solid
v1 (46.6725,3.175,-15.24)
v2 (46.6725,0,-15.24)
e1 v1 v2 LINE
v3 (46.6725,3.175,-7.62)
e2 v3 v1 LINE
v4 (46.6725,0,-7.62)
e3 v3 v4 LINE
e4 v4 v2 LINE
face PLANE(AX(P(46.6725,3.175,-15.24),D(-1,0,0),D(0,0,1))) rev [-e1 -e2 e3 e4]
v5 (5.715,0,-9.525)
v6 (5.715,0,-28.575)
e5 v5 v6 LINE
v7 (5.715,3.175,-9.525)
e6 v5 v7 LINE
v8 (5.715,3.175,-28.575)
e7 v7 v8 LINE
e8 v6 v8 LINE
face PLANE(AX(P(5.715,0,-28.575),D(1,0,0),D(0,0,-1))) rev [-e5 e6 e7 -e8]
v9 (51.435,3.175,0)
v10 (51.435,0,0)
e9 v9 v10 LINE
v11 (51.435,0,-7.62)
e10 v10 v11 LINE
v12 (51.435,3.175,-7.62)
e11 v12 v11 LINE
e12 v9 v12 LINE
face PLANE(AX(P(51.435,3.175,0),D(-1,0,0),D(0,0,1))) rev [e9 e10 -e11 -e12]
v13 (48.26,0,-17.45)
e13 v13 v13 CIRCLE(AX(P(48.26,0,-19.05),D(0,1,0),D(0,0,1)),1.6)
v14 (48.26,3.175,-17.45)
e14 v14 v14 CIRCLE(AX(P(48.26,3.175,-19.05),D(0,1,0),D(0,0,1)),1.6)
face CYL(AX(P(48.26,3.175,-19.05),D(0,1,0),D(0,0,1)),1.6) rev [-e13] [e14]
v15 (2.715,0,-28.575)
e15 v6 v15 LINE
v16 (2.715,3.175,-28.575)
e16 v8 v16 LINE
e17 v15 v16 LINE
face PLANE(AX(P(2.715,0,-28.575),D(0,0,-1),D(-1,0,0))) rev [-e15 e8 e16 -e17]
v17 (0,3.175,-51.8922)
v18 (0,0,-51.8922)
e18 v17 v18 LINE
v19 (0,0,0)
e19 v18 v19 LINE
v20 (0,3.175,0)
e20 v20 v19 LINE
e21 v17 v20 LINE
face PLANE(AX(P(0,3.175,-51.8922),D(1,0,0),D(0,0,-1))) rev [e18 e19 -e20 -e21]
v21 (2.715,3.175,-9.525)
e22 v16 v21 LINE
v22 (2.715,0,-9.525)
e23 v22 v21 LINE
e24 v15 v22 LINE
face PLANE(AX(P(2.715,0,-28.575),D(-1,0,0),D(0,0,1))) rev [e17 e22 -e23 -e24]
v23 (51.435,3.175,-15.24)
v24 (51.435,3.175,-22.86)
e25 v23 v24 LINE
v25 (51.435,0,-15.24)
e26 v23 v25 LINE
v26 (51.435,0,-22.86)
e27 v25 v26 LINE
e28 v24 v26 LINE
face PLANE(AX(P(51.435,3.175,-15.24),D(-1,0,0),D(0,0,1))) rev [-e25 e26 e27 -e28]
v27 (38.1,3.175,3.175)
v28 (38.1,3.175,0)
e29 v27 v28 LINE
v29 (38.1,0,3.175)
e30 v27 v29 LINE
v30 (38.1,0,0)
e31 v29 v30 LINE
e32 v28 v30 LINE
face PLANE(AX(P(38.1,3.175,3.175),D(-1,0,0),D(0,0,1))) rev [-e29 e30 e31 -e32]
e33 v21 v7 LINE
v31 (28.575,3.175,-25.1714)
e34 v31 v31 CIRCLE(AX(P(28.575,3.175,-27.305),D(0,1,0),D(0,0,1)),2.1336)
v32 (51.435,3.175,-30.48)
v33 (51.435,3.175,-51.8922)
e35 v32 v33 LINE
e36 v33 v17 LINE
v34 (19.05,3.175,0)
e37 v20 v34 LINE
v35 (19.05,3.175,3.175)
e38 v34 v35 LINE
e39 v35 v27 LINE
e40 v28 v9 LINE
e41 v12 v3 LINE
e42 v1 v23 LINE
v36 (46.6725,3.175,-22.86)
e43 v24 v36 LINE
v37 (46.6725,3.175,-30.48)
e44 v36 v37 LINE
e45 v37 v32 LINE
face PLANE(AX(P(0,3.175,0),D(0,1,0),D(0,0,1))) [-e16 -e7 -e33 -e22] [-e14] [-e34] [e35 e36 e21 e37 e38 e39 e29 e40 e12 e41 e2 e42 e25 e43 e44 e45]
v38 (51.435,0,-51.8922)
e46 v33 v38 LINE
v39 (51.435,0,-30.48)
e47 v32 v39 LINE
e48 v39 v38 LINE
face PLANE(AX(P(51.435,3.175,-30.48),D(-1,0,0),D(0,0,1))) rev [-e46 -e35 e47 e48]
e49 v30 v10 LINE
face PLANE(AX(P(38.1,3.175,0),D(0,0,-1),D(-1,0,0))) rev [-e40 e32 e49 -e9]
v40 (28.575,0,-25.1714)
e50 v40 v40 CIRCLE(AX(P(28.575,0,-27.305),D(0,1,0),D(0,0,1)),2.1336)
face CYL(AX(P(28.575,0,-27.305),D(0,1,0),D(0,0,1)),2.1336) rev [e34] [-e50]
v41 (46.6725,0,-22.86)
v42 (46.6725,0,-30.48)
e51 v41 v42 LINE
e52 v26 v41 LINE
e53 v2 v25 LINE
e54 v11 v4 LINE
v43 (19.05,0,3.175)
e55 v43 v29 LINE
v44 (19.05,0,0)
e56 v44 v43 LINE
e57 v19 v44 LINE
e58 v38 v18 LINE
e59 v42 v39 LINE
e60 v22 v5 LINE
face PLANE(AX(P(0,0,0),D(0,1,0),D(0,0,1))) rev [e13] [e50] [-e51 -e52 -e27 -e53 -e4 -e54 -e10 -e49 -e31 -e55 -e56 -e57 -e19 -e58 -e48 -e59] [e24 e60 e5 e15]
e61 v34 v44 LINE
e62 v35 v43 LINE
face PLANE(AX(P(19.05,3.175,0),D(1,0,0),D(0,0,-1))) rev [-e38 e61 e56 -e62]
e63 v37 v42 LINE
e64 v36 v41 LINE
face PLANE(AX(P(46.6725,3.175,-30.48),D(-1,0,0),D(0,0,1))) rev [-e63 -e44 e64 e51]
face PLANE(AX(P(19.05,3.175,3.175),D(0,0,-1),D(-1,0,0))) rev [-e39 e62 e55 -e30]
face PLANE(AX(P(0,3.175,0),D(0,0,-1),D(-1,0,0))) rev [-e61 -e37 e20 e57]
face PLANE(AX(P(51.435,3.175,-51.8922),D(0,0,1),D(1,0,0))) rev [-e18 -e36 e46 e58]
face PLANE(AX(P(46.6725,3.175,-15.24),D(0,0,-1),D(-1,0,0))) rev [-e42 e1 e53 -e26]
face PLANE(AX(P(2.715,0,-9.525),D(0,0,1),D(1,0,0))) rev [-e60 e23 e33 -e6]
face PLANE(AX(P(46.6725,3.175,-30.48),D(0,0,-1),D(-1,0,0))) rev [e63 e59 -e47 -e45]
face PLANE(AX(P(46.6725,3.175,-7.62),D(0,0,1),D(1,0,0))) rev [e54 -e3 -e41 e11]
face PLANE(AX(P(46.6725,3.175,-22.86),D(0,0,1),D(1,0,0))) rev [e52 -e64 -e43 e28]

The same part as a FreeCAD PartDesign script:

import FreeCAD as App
import Part
import Sketcher
Q = App.Units.Quantity


def add_polygon(sketch, points):
    """Adds a closed chain of lines whose ends are joined by coincident constraints."""
    first, n = sketch.GeometryCount, len(points)
    for a, b in zip(points, points[1:] + points[:1]):
        sketch.addGeometry(Part.LineSegment(App.Vector(*a, 0), App.Vector(*b, 0)), False)
    for i in range(n):
        sketch.addConstraint(Sketcher.Constraint("Coincident", first + i, 2, first + (i + 1) % n, 1))

doc = App.newDocument("Part")
body = doc.addObject("PartDesign::Body", "Body")

# Sketch on XZ plane
sketch1 = body.newObject("Sketcher::SketchObject", "Sketch")
sketch1.AttachmentSupport = (doc.getObject("XZ_Plane"), [""])
sketch1.MapMode = "FlatFace"
add_polygon(sketch1, [(0, 0), (19.1, 0), (19.1, 3.2), (38.1, 3.2), (38.1, 0), (51.4, 0), (51.4, -7.6), (46.7, -7.6), (46.7, -15.2), (51.4, -15.2), (51.4, -22.9), (46.7, -22.9), (46.7, -30.5), (51.4, -30.5), (51.4, -51.9), (0, -51.9)])  # lines 0-15
sketch1.addConstraint([
    Sketcher.Constraint("Horizontal", 0),
    Sketcher.Constraint("Vertical", 1),
    Sketcher.Constraint("Horizontal", 2),
    Sketcher.Constraint("Vertical", 3),
    Sketcher.Constraint("Horizontal", 4),
    Sketcher.Constraint("Vertical", 5),
    Sketcher.Constraint("Horizontal", 6),
    Sketcher.Constraint("Vertical", 7),
    Sketcher.Constraint("Horizontal", 8),
    Sketcher.Constraint("Vertical", 9),
    Sketcher.Constraint("Horizontal", 10),
    Sketcher.Constraint("Vertical", 11),
    Sketcher.Constraint("Horizontal", 12),
    Sketcher.Constraint("Vertical", 13),
    Sketcher.Constraint("Horizontal", 14),
    Sketcher.Constraint("Vertical", 15),
    Sketcher.Constraint("Coincident", 15, 2, -1, 1),
    Sketcher.Constraint("PointOnObject", 3, 2, -1),
    Sketcher.Constraint("Vertical", 5, 2, 8, 2),
    Sketcher.Constraint("Vertical", 7, 2, 10, 2),
    Sketcher.Constraint("Vertical", 9, 2, 12, 2),
    Sketcher.Constraint("Equal", 0, 2),
    Sketcher.Constraint("Equal", 5, 7),
    Sketcher.Constraint("Equal", 7, 9),
    Sketcher.Constraint("Equal", 9, 11),
    Sketcher.Constraint("DistanceY", 5, 2, 5, 1, Q("0.3 in")),
    Sketcher.Constraint("DistanceX", 0, 1, 0, 2, Q("0.75 in")),
    Sketcher.Constraint("DistanceX", 4, 1, 4, 2, Q("0.525 in")),
    Sketcher.Constraint("DistanceX", 6, 2, 6, 1, Q("0.1875 in")),
    Sketcher.Constraint("DistanceY", 1, 1, 1, 2, Q("0.125 in")),
    Sketcher.Constraint("DistanceY", 13, 2, 13, 1, Q("0.843 in")),
])
pad1 = body.newObject("PartDesign::Pad", "Pad")
pad1.Profile = sketch1
pad1.Length = Q("0.125 in")
pad1.Reversed = True

# Sketch on XZ plane
sketch2 = body.newObject("Sketcher::SketchObject", "Sketch001")
sketch2.AttachmentSupport = (doc.getObject("XZ_Plane"), [""])
sketch2.MapMode = "FlatFace"
sketch2.AttachmentOffset = App.Placement(App.Vector(0, 0, -0.125 * 25.4), App.Rotation())
sketch2.addGeometry(Part.Circle(App.Vector(48.3, -19.1, 0), App.Vector(0, 0, 1), 1.6), False)
sketch2.addConstraint([
    Sketcher.Constraint("DistanceX", -1, 1, 0, 3, Q("1.9 in")),
    Sketcher.Constraint("Diameter", 0, 3.2),
    Sketcher.Constraint("DistanceY", 0, 3, -1, 1, Q("0.75 in")),
])
doc.recompute()
hole = body.newObject("PartDesign::Hole", "Hole")
hole.Profile = sketch2
hole.ThreadType = "None"
hole.Diameter = 3.2
hole.DepthType = "ThroughAll"
hole.Reversed = True

# Sketch on XZ plane
sketch3 = body.newObject("Sketcher::SketchObject", "Sketch002")
sketch3.AttachmentSupport = (doc.getObject("XZ_Plane"), [""])
sketch3.MapMode = "FlatFace"
sketch3.AttachmentOffset = App.Placement(App.Vector(0, 0, -0.125 * 25.4), App.Rotation())
sketch3.addGeometry(Part.Circle(App.Vector(28.6, -27.3, 0), App.Vector(0, 0, 1), 2.1), False)
sketch3.addConstraint([
    Sketcher.Constraint("Diameter", 0, Q("0.168 in")),
    Sketcher.Constraint("DistanceX", -1, 1, 0, 3, Q("1.125 in")),
    Sketcher.Constraint("DistanceY", 0, 3, -1, 1, Q("1.075 in")),
])
pocket1 = body.newObject("PartDesign::Pocket", "Pocket")
pocket1.Profile = sketch3
pocket1.Type = "ThroughAll"
pocket1.Reversed = True

# Sketch on XZ plane
sketch4 = body.newObject("Sketcher::SketchObject", "Sketch003")
sketch4.AttachmentSupport = (doc.getObject("XZ_Plane"), [""])
sketch4.MapMode = "FlatFace"
sketch4.AttachmentOffset = App.Placement(App.Vector(0, 0, -0.125 * 25.4), App.Rotation())
add_polygon(sketch4, [(2.7, -28.6), (2.7, -9.5), (5.7, -9.5), (5.7, -28.6)])  # lines 0-3
sketch4.addConstraint([
    Sketcher.Constraint("Vertical", 0),
    Sketcher.Constraint("Horizontal", 1),
    Sketcher.Constraint("Vertical", 2),
    Sketcher.Constraint("Horizontal", 3),
    Sketcher.Constraint("DistanceY", 0, 1, 0, 2, Q("0.75 in")),
    Sketcher.Constraint("DistanceY", 0, 2, -1, 1, Q("0.375 in")),
    Sketcher.Constraint("DistanceX", -1, 1, 1, 2, Q("0.225 in")),
    Sketcher.Constraint("DistanceX", 1, 1, 1, 2, 3.0),
])
pocket2 = body.newObject("PartDesign::Pocket", "Pocket001")
pocket2.Profile = sketch4
pocket2.Type = "ThroughAll"
pocket2.Reversed = True

doc.recompute()
